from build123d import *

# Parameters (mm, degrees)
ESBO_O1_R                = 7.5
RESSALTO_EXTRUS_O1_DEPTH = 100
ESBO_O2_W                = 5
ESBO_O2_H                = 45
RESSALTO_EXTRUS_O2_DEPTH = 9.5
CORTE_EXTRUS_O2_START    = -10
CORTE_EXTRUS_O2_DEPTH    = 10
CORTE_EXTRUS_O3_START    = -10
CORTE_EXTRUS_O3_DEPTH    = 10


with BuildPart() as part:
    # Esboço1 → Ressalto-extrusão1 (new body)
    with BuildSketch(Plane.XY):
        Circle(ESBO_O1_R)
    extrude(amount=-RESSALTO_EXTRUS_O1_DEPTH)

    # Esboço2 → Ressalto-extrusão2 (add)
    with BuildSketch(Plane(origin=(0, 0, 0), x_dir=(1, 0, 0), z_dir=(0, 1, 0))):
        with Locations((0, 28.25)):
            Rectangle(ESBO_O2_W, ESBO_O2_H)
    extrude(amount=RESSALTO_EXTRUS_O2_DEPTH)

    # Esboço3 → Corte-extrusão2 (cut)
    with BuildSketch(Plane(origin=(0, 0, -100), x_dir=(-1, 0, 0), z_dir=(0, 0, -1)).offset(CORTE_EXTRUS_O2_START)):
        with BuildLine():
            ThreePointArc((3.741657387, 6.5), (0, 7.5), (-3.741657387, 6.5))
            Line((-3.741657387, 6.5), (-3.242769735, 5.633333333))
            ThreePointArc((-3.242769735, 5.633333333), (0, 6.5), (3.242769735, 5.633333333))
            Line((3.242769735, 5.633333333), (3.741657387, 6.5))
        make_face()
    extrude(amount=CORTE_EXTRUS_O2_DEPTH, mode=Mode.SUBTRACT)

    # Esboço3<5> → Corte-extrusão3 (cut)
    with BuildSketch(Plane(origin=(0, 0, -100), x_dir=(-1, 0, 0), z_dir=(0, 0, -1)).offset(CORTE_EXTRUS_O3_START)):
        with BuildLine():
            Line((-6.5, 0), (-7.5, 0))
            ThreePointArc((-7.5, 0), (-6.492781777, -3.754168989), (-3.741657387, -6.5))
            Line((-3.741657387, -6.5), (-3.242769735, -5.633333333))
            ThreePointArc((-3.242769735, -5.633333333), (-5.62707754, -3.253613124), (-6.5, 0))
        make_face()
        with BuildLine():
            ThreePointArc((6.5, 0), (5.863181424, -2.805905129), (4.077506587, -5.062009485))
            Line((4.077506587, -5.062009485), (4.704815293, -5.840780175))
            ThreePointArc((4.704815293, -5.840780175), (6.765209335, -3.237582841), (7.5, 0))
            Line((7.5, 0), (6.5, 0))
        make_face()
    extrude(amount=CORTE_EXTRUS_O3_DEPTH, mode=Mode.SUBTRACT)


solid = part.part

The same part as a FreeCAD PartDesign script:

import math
import FreeCAD as App
import Part
import Sketcher
from FreeCAD import Vector
Q = App.Units.Quantity


def add_polygon(sketch, points):
    """Adds a closed chain of lines whose ends are joined by coincident constraints."""
    first, n = sketch.GeometryCount, len(points)
    for a, b in zip(points, points[1:] + points[:1]):
        sketch.addGeometry(Part.LineSegment(App.Vector(*a, 0), App.Vector(*b, 0)), False)
    for i in range(n):
        sketch.addConstraint(Sketcher.Constraint("Coincident", first + i, 2, first + (i + 1) % n, 1))

doc = App.newDocument("Part")
body = doc.addObject("PartDesign::Body", "Body")

sketch1 = body.newObject("Sketcher::SketchObject", "Sketch")
sketch1.AttachmentSupport = (doc.getObject("XY_Plane"), [""])
sketch1.MapMode = "FlatFace"
sketch1.addGeometry(Part.Circle(Vector(0, 0, 0), Vector(0, 0, 1), 8), False)
sketch1.addConstraint([
    Sketcher.Constraint("Coincident", 0, 3, -1, 1),
    Sketcher.Constraint("Diameter", 0, Q("15 mm")),
])
pad1 = body.newObject("PartDesign::Pad", "Pad")
pad1.Profile = sketch1
pad1.Length = 100
pad1.Reversed = True

sketch2 = body.newObject("Sketcher::SketchObject", "Sketch001")
sketch2.AttachmentSupport = (doc.getObject("XZ_Plane"), [""])
sketch2.MapMode = "FlatFace"
add_polygon(sketch2, [(-2, -51), (-2, -6), (2, -6), (2, -51)])
sketch2.addConstraint([
    Sketcher.Constraint("Vertical", 0),
    Sketcher.Constraint("Horizontal", 1),
    Sketcher.Constraint("Vertical", 2),
    Sketcher.Constraint("Horizontal", 3),
    Sketcher.Constraint("DistanceX", 1, 1, 1, 2, Q("5 mm")),
    Sketcher.Constraint("DistanceY", 0, 1, 0, 2, Q("45 mm")),
    Sketcher.Constraint("DistanceX", 0, 2, -1, 1, Q("2.5 mm")),
    Sketcher.Constraint("DistanceY", 0, 2, -1, 1, Q("5.75 mm")),
])
pad2 = body.newObject("PartDesign::Pad", "Pad001")
pad2.Profile = sketch2
pad2.Length = 9.5
pad2.Reversed = True

sketch3 = body.newObject("Sketcher::SketchObject", "Sketch002")
sketch3.AttachmentSupport = (doc.getObject("XY_Plane"), [""])
sketch3.MapMode = "FlatFace"
sketch3.AttachmentOffset = App.Placement(Vector(0, 0, -90), App.Rotation())
sketch3.addGeometry([
    Part.ArcOfCircle(Part.Circle(Vector(0, 0, 0), Vector(0, 0, 1), 7.5), math.radians(60), math.radians(120)),
    Part.LineSegment(Vector(3.7, 6.5, 0), Vector(3.2, 5.6, 0)),
    Part.ArcOfCircle(Part.Circle(Vector(0, 0, 0), Vector(0, 0, 1), 6.5), math.radians(60), math.radians(120)),
    Part.LineSegment(Vector(-3.2, 5.6, 0), Vector(-3.7, 6.5, 0)),
], False)
sketch3.addConstraint([
    Sketcher.Constraint("Coincident", 0, 1, 1, 1),
    Sketcher.Constraint("Coincident", 1, 2, 2, 1),
    Sketcher.Constraint("Coincident", 2, 2, 3, 1),
    Sketcher.Constraint("Coincident", 3, 2, 0, 2),
    Sketcher.Constraint("Coincident", 0, 3, -1, 1),
    Sketcher.Constraint("Coincident", 2, 3, -1, 1),
    Sketcher.Constraint("Horizontal", 1, 2, 2, 2),
    Sketcher.Constraint("Horizontal", 0, 1, 3, 2),
    Sketcher.Constraint("Radius", 0, Q("7.5 mm")),
    Sketcher.Constraint("Radius", 2, Q("6.5 mm")),
    Sketcher.Constraint("DistanceY", -1, 1, 0, 1, Q("6.5 mm")),
    Sketcher.Constraint("DistanceX", -1, 1, 1, 2, Q("3.24277 mm")),
])
pocket1 = body.newObject("PartDesign::Pocket", "Pocket")
pocket1.Profile = sketch3
pocket1.Length = 10

sketch4 = body.newObject("Sketcher::SketchObject", "Sketch003")
sketch4.AttachmentSupport = (doc.getObject("XY_Plane"), [""])
sketch4.MapMode = "FlatFace"
sketch4.AttachmentOffset = App.Placement(Vector(0, 0, -90), App.Rotation())
sketch4.addGeometry([
    Part.LineSegment(Vector(6.5, 0, 0), Vector(7.5, 0, 0)),
    Part.ArcOfCircle(Part.Circle(Vector(0, 0, 0), Vector(0, 0, 1), 7.5), math.radians(-60), math.radians(0)),
    Part.LineSegment(Vector(3.7, -6.5, 0), Vector(3.2, -5.6, 0)),
    Part.ArcOfCircle(Part.Circle(Vector(0, 0, 0), Vector(0, 0, 1), 6.5), math.radians(-60), math.radians(0)),
    Part.ArcOfCircle(Part.Circle(Vector(0, 0, 0), Vector(0, 0, 1), 6.5), math.radians(180), math.radians(231)),
    Part.LineSegment(Vector(-4.1, -5.1, 0), Vector(-4.7, -5.8, 0)),
    Part.ArcOfCircle(Part.Circle(Vector(0, 0, 0), Vector(0, 0, 1), 7.5), math.radians(180), math.radians(231)),
    Part.LineSegment(Vector(-7.5, 0, 0), Vector(-6.5, 0, 0)),
], False)
sketch4.addConstraint([
    Sketcher.Constraint("Coincident", 0, 2, 1, 2),
    Sketcher.Constraint("Coincident", 1, 1, 2, 1),
    Sketcher.Constraint("Coincident", 2, 2, 3, 1),
    Sketcher.Constraint("Coincident", 3, 2, 0, 1),
    Sketcher.Constraint("Coincident", 4, 2, 5, 1),
    Sketcher.Constraint("Coincident", 5, 2, 6, 2),
    Sketcher.Constraint("Coincident", 6, 1, 7, 1),
    Sketcher.Constraint("Coincident", 7, 2, 4, 1),
    Sketcher.Constraint("Horizontal", 0),
    Sketcher.Constraint("Horizontal", 7),
    Sketcher.Constraint("Coincident", 1, 3, -1, 1),
    Sketcher.Constraint("Coincident", 3, 3, -1, 1),
    Sketcher.Constraint("Coincident", 4, 3, -1, 1),
    Sketcher.Constraint("Coincident", 6, 3, -1, 1),
    Sketcher.Constraint("Equal", 3, 4),
    Sketcher.Constraint("Equal", 1, 6),
    Sketcher.Constraint("PointOnObject", 0, 2, -1),
    Sketcher.Constraint("PointOnObject", 6, 1, -1),
    Sketcher.Constraint("Radius", 1, Q("7.5 mm")),
    Sketcher.Constraint("Radius", 3, Q("6.5 mm")),
    Sketcher.Constraint("DistanceY", 1, 1, -1, 1, Q("6.5 mm")),
    Sketcher.Constraint("DistanceX", -1, 1, 2, 2, Q("3.24277 mm")),
    Sketcher.Constraint("DistanceY", 4, 2, -1, 1, Q("5.062009 mm")),
    Sketcher.Constraint("DistanceY", 5, 2, -1, 1, Q("5.84078 mm")),
])
pocket2 = body.newObject("PartDesign::Pocket", "Pocket001")
pocket2.Profile = sketch4
pocket2.Length = 10

doc.recompute()
